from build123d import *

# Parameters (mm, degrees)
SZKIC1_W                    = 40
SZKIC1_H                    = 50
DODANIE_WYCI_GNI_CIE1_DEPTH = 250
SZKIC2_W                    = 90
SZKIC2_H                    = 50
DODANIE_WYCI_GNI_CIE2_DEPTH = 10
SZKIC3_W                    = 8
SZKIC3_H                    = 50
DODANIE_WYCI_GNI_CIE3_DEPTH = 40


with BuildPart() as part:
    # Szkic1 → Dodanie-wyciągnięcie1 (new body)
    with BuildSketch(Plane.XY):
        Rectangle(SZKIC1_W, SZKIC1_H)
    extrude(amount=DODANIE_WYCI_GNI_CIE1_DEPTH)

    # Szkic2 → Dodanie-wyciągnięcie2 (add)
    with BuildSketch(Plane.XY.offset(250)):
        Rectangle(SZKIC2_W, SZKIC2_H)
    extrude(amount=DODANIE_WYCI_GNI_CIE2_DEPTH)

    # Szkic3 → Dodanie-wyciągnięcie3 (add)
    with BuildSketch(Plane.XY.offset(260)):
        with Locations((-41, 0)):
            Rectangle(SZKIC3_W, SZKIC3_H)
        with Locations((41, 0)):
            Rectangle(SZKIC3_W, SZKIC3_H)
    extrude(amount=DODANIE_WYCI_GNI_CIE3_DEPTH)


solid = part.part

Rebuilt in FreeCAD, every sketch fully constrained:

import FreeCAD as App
import Part
import Sketcher

V = App.Vector


def add_polygon(sketch, points):
    """Adds a closed chain of lines whose ends are joined by coincident constraints."""
    first, n = sketch.GeometryCount, len(points)
    for a, b in zip(points, points[1:] + points[:1]):
        sketch.addGeometry(Part.LineSegment(App.Vector(*a, 0), App.Vector(*b, 0)), False)
    for i in range(n):
        sketch.addConstraint(Sketcher.Constraint("Coincident", first + i, 2, first + (i + 1) % n, 1))

doc = App.newDocument("Part")
params = doc.addObject("Spreadsheet::Sheet", "Params")
for row, (alias, value) in enumerate([
    ("sketch1_width", "40 mm"),
    ("sketch1_height", "50 mm"),
    ("pad1_length", "250 mm"),
    ("sketch2_width", "90 mm"),
    ("sketch2_height", "50 mm"),
    ("pad2_length", "10 mm"),
    ("sketch3_width", "8 mm"),
    ("sketch3_height", "50 mm"),
    ("pad3_length", "40 mm"),
], start=1):
    params.set(f"A{row}", alias)
    params.set(f"B{row}", "=" + value)
    params.setAlias(f"B{row}", alias)

body = doc.addObject("PartDesign::Body", "Body")

sketch1 = doc.addObject("Sketcher::SketchObject", "Sketch")
body.addObject(sketch1)
sketch1.AttachmentSupport = (doc.XY_Plane, [""])
sketch1.MapMode = "FlatFace"
add_polygon(sketch1, [(-20, 25), (-20, -25), (20, -25), (20, 25)])
sketch1.addConstraint([
    Sketcher.Constraint("Vertical", 0),
    Sketcher.Constraint("Horizontal", 1),
    Sketcher.Constraint("Vertical", 2),
    Sketcher.Constraint("Horizontal", 3),
    Sketcher.Constraint("Symmetric", 0, 2, 2, 2, -1, 1),
    Sketcher.Constraint("DistanceX", 1, 1, 1, 2, 40.0),
    Sketcher.Constraint("DistanceY", 0, 2, 0, 1, 50.0),
])
sketch1.setExpression("Constraints[9]", "Params.sketch1_width")
sketch1.setExpression("Constraints[10]", "Params.sketch1_height")
pad1 = doc.addObject("PartDesign::Pad", "Pad")
body.addObject(pad1)
pad1.Profile = sketch1
pad1.setExpression("Length", "Params.pad1_length")

sketch2 = doc.addObject("Sketcher::SketchObject", "Sketch001")
body.addObject(sketch2)
sketch2.AttachmentSupport = (doc.XY_Plane, [""])
sketch2.MapMode = "FlatFace"
sketch2.AttachmentOffset = App.Placement(V(0, 0, 250), App.Rotation())
add_polygon(sketch2, [(-45, 25), (-45, -25), (45, -25), (45, 25)])
sketch2.addConstraint([
    Sketcher.Constraint("Vertical", 0),
    Sketcher.Constraint("Horizontal", 1),
    Sketcher.Constraint("Vertical", 2),
    Sketcher.Constraint("Horizontal", 3),
    Sketcher.Constraint("Symmetric", 0, 2, 2, 2, -1, 1),
    Sketcher.Constraint("DistanceX", 1, 1, 1, 2, 90.0),
    Sketcher.Constraint("DistanceY", 0, 2, 0, 1, 50.0),
])
sketch2.setExpression("Constraints[9]", "Params.sketch2_width")
sketch2.setExpression("Constraints[10]", "Params.sketch2_height")
pad2 = doc.addObject("PartDesign::Pad", "Pad001")
body.addObject(pad2)
pad2.Profile = sketch2
pad2.setExpression("Length", "Params.pad2_length")

sketch3 = doc.addObject("Sketcher::SketchObject", "Sketch002")
body.addObject(sketch3)
sketch3.AttachmentSupport = (doc.XY_Plane, [""])
sketch3.MapMode = "FlatFace"
sketch3.AttachmentOffset = App.Placement(V(0, 0, 260), App.Rotation())
add_polygon(sketch3, [(-45, 25), (-45, -25), (-37, -25), (-37, 25)])
add_polygon(sketch3, [(37, 25), (37, -25), (45, -25), (45, 25)])
sketch3.addConstraint([
    Sketcher.Constraint("Vertical", 0),
    Sketcher.Constraint("Horizontal", 1),
    Sketcher.Constraint("Vertical", 2),
    Sketcher.Constraint("Horizontal", 3),
    Sketcher.Constraint("Vertical", 4),
    Sketcher.Constraint("Horizontal", 5),
    Sketcher.Constraint("Vertical", 6),
    Sketcher.Constraint("Horizontal", 7),
    Sketcher.Constraint("Symmetric", 2, 2, 4, 2, -1, 1),
    Sketcher.Constraint("Symmetric", 0, 2, 6, 2, -1, 1),
    Sketcher.Constraint("Horizontal", 1, 2, 4, 2),
    Sketcher.Constraint("DistanceX", 1, 1, 1, 2, 8.0),
    Sketcher.Constraint("DistanceY", 0, 2, 0, 1, 50.0),
    Sketcher.Constraint("DistanceX", 0, 2, -1, 1, 45.0),
])
sketch3.setExpression("Constraints[19]", "Params.sketch3_width")
sketch3.setExpression("Constraints[20]", "Params.sketch3_height")
pad3 = doc.addObject("PartDesign::Pad", "Pad002")
body.addObject(pad3)
pad3.Profile = sketch3
pad3.setExpression("Length", "Params.pad3_length")

doc.recompute()
